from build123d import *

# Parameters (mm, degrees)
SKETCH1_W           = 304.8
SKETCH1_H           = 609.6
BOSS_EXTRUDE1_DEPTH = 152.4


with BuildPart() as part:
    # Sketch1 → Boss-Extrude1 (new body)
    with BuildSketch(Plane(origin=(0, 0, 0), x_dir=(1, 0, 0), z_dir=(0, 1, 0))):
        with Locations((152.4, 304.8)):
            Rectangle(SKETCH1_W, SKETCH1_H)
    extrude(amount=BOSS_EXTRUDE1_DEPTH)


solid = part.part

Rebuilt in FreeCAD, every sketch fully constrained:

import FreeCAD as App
import Part
import Sketcher
from FreeCAD import Vector
Q = App.Units.Quantity


def add_polygon(sketch, points):
    """Adds a closed chain of lines whose ends are joined by coincident constraints."""
    first, n = sketch.GeometryCount, len(points)
    for a, b in zip(points, points[1:] + points[:1]):
        sketch.addGeometry(Part.LineSegment(App.Vector(*a, 0), App.Vector(*b, 0)), False)
    for i in range(n):
        sketch.addConstraint(Sketcher.Constraint("Coincident", first + i, 2, first + (i + 1) % n, 1))

doc = App.newDocument("Part")
body = doc.addObject("PartDesign::Body", "Body")

# Sketch on XZ plane
sketch1 = body.newObject("Sketcher::SketchObject", "Sketch")
sketch1.AttachmentSupport = (doc.getObject("XZ_Plane"), [""])
sketch1.MapMode = "FlatFace"
add_polygon(sketch1, [(0, -610), (0, 0), (305, 0), (305, -610)])  # lines 0-3
sketch1.addConstraint([
    Sketcher.Constraint("Vertical", 0),
    Sketcher.Constraint("Horizontal", 1),
    Sketcher.Constraint("Vertical", 2),
    Sketcher.Constraint("Horizontal", 3),
    Sketcher.Constraint("Coincident", 0, 2, -1, 1),
    Sketcher.Constraint("DistanceX", 1, 1, 1, 2, Q("12 in")),
    Sketcher.Constraint("DistanceY", 0, 1, 0, 2, Q("24 in")),
])
pad1 = body.newObject("PartDesign::Pad", "Pad")
pad1.Profile = sketch1
pad1.Length = Q("6 in")
pad1.Reversed = True

doc.recompute()
